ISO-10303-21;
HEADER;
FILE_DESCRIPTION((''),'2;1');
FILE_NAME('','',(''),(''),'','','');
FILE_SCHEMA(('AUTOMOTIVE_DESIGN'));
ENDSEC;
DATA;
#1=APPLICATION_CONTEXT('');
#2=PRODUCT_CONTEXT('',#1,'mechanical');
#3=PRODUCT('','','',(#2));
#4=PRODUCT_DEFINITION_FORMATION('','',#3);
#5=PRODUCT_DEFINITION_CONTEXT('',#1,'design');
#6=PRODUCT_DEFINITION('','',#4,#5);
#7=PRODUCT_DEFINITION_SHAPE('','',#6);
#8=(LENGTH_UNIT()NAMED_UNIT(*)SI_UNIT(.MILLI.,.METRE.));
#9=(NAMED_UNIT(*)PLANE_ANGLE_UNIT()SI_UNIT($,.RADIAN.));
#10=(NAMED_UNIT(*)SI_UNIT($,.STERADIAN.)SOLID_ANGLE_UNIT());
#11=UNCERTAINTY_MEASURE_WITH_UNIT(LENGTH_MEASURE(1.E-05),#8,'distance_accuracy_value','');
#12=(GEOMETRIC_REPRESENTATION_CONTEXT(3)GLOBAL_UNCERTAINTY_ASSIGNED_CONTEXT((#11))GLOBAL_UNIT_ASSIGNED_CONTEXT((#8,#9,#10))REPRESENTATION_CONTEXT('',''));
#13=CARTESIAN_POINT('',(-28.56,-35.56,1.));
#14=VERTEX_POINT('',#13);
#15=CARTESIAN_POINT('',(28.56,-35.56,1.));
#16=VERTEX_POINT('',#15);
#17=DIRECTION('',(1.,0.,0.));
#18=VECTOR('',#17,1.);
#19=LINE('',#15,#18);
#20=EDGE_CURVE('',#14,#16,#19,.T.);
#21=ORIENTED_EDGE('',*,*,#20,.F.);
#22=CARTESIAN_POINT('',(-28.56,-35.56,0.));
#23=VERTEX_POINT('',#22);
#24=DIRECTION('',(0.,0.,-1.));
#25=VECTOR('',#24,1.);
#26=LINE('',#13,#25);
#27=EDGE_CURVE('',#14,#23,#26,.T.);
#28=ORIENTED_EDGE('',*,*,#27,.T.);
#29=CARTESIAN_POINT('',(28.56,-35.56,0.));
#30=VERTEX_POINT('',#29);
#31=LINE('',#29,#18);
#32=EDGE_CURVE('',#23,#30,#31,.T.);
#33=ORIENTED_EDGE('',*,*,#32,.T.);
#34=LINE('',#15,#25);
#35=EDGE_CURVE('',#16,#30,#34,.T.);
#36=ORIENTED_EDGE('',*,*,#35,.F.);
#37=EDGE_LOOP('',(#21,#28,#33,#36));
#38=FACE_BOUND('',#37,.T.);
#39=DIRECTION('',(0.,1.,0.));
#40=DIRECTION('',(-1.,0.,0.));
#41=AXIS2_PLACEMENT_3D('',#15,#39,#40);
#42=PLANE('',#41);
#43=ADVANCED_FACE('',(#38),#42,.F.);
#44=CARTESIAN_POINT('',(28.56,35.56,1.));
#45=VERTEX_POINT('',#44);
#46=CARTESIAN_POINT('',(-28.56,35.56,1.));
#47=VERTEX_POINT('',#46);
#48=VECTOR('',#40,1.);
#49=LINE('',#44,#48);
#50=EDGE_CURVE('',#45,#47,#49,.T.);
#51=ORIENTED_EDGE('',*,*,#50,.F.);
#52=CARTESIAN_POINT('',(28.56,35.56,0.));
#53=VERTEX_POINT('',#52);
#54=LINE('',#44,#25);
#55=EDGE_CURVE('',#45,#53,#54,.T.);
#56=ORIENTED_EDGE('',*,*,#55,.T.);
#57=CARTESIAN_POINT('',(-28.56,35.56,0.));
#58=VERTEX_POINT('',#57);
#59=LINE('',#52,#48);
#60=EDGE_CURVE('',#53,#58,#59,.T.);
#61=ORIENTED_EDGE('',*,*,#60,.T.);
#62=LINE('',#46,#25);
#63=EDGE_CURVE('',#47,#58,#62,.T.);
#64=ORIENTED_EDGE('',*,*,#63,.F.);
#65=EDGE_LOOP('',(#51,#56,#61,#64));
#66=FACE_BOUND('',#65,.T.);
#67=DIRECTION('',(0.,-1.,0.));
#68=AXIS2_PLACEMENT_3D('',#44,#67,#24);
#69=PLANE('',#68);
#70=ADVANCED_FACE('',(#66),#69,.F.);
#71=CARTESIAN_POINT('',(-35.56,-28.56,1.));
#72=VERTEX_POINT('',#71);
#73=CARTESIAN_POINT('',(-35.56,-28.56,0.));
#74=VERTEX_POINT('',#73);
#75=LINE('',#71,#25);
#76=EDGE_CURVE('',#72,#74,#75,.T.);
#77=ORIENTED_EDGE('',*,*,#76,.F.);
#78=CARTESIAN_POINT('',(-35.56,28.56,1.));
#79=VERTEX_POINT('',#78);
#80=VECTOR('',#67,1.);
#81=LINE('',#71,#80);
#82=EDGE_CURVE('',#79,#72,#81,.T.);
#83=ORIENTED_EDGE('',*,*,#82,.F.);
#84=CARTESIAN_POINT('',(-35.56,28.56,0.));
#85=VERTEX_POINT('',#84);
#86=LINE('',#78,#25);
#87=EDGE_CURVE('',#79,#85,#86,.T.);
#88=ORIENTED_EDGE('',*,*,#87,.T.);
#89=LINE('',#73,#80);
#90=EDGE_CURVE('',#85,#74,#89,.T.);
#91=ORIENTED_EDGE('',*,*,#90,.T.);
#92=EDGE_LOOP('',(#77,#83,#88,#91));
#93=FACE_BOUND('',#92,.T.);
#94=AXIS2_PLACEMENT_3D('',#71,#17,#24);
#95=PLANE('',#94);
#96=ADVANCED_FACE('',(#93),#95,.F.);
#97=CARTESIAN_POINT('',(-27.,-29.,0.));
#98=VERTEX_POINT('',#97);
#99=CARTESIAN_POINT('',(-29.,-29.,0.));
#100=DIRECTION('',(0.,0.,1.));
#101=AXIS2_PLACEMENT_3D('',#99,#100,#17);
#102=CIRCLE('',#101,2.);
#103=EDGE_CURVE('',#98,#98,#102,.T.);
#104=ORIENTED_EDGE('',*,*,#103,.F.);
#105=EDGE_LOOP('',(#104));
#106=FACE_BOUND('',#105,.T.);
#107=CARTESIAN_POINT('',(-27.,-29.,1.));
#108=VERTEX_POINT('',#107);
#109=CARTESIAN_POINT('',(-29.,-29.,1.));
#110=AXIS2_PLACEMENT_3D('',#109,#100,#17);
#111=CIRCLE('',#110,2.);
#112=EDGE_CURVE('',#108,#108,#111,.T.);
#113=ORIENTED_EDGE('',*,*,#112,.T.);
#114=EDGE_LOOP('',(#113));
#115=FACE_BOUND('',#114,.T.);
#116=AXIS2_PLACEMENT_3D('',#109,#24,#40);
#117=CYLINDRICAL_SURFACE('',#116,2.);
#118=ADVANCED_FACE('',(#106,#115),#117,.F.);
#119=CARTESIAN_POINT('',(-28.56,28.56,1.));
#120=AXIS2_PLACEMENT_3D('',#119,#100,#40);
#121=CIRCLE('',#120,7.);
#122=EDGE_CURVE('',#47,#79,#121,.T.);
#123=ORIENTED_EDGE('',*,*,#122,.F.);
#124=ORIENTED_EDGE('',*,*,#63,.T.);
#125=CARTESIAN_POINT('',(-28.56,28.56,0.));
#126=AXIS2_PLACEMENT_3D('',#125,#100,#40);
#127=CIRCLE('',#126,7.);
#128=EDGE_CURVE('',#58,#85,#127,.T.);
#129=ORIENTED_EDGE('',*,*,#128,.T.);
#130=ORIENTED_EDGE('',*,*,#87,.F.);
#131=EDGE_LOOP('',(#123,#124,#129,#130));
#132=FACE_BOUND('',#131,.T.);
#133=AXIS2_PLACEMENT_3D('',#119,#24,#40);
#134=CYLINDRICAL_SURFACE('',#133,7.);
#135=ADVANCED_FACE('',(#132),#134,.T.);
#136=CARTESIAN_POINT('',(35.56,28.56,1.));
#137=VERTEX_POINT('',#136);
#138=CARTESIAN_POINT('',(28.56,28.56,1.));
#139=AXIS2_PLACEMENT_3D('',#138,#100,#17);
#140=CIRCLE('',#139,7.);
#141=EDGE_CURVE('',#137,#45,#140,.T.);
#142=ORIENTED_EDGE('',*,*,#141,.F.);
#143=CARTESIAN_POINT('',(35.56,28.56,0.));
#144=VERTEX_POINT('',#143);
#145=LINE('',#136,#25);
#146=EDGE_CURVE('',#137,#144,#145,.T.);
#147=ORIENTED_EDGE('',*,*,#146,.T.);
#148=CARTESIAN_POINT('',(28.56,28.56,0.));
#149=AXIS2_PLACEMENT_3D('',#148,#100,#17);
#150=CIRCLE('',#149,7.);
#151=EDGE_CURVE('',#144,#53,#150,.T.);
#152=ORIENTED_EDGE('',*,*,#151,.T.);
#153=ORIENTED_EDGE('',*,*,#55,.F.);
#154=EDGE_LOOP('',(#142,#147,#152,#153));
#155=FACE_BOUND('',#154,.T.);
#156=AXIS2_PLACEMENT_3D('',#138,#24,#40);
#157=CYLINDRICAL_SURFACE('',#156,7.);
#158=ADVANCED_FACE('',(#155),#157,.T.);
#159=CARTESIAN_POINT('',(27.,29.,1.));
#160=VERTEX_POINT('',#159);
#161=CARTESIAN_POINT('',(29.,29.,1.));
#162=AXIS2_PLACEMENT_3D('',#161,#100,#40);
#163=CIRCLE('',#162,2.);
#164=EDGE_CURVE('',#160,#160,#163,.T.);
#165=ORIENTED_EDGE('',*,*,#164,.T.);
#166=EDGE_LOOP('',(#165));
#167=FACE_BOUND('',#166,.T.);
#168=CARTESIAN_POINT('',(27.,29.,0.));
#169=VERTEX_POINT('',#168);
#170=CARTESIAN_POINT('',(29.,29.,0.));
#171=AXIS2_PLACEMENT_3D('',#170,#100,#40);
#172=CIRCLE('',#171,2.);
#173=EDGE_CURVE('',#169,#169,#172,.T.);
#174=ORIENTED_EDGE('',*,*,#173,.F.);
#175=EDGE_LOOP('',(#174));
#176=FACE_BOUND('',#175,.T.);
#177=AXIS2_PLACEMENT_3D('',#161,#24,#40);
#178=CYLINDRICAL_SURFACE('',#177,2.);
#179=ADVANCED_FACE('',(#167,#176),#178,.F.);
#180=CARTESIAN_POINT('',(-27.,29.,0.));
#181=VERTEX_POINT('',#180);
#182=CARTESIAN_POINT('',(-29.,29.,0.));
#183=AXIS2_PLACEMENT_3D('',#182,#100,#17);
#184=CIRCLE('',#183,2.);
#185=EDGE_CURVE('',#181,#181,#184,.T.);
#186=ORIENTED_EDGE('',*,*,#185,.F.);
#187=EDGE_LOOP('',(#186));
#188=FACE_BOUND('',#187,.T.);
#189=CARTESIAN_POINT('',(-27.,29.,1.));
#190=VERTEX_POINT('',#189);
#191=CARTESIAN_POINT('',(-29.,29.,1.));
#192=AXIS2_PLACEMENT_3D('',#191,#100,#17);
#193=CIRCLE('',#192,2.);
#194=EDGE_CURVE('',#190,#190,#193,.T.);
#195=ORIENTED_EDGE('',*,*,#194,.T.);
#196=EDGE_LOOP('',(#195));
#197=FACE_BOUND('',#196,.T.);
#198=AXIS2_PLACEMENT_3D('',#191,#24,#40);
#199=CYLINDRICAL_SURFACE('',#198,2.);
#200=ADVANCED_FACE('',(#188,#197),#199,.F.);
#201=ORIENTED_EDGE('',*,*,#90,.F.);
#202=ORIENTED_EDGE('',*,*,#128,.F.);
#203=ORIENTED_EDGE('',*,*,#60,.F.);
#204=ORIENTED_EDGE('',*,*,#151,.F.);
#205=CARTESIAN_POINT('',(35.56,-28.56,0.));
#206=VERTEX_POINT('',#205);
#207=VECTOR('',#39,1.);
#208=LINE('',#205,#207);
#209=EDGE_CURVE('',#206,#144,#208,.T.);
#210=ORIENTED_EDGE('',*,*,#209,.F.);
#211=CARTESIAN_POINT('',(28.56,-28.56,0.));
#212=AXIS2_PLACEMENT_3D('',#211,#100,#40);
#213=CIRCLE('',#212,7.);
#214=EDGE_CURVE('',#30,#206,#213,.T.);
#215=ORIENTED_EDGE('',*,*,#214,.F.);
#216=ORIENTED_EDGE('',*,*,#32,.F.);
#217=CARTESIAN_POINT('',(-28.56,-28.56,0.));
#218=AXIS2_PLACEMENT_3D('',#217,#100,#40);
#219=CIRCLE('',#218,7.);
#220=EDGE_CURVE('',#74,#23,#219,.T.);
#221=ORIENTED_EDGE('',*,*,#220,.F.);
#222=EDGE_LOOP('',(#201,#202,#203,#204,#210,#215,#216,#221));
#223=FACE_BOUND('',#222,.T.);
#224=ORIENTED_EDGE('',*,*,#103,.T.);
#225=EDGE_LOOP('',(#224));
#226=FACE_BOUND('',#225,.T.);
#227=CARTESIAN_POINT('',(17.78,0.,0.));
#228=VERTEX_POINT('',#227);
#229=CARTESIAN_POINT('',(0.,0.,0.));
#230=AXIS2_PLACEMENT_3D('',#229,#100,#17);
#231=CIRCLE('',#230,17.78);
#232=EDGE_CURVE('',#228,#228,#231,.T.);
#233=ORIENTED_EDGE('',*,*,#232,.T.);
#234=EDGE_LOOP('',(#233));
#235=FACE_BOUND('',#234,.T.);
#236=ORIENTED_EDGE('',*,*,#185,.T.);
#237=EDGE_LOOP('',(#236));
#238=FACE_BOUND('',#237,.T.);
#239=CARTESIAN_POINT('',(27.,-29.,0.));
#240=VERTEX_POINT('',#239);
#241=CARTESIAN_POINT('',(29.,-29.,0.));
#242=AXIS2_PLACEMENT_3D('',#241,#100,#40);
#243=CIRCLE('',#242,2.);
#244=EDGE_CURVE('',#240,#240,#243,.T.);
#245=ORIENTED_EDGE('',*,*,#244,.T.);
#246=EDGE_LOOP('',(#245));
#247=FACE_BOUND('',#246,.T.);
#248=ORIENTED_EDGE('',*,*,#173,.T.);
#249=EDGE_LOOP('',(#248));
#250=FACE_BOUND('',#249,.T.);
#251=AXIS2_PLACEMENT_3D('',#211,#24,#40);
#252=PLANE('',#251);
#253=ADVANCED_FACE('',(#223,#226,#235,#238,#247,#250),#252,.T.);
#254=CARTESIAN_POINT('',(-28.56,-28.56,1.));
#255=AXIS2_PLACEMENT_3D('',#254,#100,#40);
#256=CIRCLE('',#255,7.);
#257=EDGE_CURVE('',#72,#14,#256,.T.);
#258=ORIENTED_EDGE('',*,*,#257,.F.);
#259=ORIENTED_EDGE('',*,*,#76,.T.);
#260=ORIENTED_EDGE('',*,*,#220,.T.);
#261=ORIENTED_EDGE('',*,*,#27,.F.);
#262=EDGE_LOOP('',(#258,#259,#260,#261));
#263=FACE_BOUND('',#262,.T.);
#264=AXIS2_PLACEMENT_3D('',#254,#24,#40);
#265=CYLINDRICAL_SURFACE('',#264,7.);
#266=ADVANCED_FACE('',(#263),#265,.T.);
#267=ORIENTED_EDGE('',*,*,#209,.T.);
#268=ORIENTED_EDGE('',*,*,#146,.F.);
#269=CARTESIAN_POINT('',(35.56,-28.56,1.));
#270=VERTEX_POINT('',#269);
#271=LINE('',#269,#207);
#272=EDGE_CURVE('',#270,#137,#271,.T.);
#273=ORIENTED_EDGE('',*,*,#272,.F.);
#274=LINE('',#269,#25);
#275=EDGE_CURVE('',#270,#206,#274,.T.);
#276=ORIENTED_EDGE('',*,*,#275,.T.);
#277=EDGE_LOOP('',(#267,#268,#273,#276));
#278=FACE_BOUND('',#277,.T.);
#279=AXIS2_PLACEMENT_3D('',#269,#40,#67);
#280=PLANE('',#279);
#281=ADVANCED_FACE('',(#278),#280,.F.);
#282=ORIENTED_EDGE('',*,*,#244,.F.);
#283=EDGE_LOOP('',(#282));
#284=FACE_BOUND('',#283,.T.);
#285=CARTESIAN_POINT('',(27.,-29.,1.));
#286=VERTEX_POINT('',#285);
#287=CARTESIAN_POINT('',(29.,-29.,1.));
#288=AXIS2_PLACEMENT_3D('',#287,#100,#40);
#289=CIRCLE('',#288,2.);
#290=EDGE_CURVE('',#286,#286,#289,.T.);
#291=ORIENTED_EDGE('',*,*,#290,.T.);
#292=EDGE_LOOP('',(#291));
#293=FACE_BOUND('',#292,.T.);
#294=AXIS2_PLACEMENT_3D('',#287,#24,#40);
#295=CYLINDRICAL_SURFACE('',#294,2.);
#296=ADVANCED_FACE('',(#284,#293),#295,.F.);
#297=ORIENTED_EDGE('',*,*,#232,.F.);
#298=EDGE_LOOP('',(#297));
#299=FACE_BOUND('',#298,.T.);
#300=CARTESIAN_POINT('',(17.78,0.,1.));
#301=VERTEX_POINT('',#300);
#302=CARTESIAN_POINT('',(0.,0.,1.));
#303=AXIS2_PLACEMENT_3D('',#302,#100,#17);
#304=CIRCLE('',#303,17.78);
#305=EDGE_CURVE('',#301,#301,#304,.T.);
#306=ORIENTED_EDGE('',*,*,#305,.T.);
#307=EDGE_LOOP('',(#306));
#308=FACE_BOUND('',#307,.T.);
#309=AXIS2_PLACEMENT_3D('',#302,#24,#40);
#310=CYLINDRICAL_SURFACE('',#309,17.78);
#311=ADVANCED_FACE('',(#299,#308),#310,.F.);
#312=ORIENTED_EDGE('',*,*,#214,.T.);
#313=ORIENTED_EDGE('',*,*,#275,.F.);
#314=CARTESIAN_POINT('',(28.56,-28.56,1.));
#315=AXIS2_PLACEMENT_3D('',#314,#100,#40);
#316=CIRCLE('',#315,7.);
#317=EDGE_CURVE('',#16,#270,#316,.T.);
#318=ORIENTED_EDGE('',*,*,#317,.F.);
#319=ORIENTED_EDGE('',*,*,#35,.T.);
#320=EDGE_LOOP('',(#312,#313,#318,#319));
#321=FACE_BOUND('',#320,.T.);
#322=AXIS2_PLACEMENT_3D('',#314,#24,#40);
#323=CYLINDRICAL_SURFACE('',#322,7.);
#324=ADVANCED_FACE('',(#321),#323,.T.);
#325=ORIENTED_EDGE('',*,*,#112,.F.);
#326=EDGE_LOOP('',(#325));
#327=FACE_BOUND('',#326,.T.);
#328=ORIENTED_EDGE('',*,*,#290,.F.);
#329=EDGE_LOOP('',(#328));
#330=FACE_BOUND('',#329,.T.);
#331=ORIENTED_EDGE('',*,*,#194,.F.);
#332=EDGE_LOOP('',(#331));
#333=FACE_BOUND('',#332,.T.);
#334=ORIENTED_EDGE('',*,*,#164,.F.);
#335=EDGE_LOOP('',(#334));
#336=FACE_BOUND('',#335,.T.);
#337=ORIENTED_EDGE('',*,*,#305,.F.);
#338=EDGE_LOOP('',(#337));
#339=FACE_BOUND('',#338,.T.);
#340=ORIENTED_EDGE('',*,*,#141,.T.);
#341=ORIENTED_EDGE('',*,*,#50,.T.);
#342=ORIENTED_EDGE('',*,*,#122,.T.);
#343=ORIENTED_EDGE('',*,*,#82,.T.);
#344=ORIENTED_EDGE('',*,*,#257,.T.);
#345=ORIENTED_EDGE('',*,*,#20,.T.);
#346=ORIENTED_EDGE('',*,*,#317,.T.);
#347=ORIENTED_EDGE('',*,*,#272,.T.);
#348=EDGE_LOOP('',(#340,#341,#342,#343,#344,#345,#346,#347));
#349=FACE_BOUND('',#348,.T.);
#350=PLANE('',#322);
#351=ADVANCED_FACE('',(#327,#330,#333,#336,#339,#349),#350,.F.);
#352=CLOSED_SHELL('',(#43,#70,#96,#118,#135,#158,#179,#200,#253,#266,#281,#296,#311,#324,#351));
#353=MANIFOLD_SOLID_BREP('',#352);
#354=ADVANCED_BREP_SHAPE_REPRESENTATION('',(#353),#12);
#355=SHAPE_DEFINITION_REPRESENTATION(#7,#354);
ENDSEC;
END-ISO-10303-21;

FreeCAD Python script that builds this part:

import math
import FreeCAD as App
import Part
import Sketcher
Q = App.Units.Quantity

doc = App.newDocument("Part")
body = doc.addObject("PartDesign::Body", "Body")

# Sketch on XY plane
sketch1 = body.newObject("Sketcher::SketchObject", "Sketch")
sketch1.AttachmentSupport = (doc.getObject("XY_Plane"), [""])
sketch1.MapMode = "FlatFace"
sketch1.addGeometry(Part.LineSegment(App.Vector(35.6, -28.6, 0), App.Vector(35.6, 28.6, 0)), False)
sketch1.addGeometry(Part.ArcOfCircle(Part.Circle(App.Vector(28.6, 28.6, 0), App.Vector(0, 0, 1), 7), math.radians(0), math.radians(90)), False)
sketch1.addGeometry(Part.LineSegment(App.Vector(28.6, 35.6, 0), App.Vector(-28.6, 35.6, 0)), False)
sketch1.addGeometry(Part.ArcOfCircle(Part.Circle(App.Vector(-28.6, 28.6, 0), App.Vector(0, 0, 1), 7), math.radians(90), math.radians(180)), False)
sketch1.addGeometry(Part.LineSegment(App.Vector(-35.6, 28.6, 0), App.Vector(-35.6, -28.6, 0)), False)
sketch1.addGeometry(Part.ArcOfCircle(Part.Circle(App.Vector(-28.6, -28.6, 0), App.Vector(0, 0, 1), 7), math.radians(-180), math.radians(-90)), False)
sketch1.addGeometry(Part.LineSegment(App.Vector(-28.6, -35.6, 0), App.Vector(28.6, -35.6, 0)), False)
sketch1.addGeometry(Part.ArcOfCircle(Part.Circle(App.Vector(28.6, -28.6, 0), App.Vector(0, 0, 1), 7), math.radians(-90), math.radians(0)), False)
sketch1.addGeometry(Part.Circle(App.Vector(29, -29, 0), App.Vector(0, 0, 1), 2), False)
sketch1.addGeometry(Part.Circle(App.Vector(29, 29, 0), App.Vector(0, 0, 1), 2), False)
sketch1.addGeometry(Part.Circle(App.Vector(-29, -29, 0), App.Vector(0, 0, 1), 2), False)
sketch1.addGeometry(Part.Circle(App.Vector(0, 0, 0), App.Vector(0, 0, 1), 17.8), False)
sketch1.addGeometry(Part.Circle(App.Vector(-29, 29, 0), App.Vector(0, 0, 1), 2), False)
sketch1.addConstraint(Sketcher.Constraint("Tangent", 0, 2, 1, 1))
sketch1.addConstraint(Sketcher.Constraint("Tangent", 1, 2, 2, 1))
sketch1.addConstraint(Sketcher.Constraint("Tangent", 2, 2, 3, 1))
sketch1.addConstraint(Sketcher.Constraint("Tangent", 3, 2, 4, 1))
sketch1.addConstraint(Sketcher.Constraint("Tangent", 4, 2, 5, 1))
sketch1.addConstraint(Sketcher.Constraint("Tangent", 5, 2, 6, 1))
sketch1.addConstraint(Sketcher.Constraint("Tangent", 6, 2, 7, 1))
sketch1.addConstraint(Sketcher.Constraint("Tangent", 7, 2, 0, 1))
sketch1.addConstraint(Sketcher.Constraint("Vertical", 0))
sketch1.addConstraint(Sketcher.Constraint("Horizontal", 2))
sketch1.addConstraint(Sketcher.Constraint("Vertical", 4))
sketch1.addConstraint(Sketcher.Constraint("Horizontal", 6))
sketch1.addConstraint(Sketcher.Constraint("Coincident", 11, 3, -1, 1))
sketch1.addConstraint(Sketcher.Constraint("Equal", 1, 3))
sketch1.addConstraint(Sketcher.Constraint("Equal", 3, 5))
sketch1.addConstraint(Sketcher.Constraint("Equal", 5, 7))
sketch1.addConstraint(Sketcher.Constraint("Equal", 8, 9))
sketch1.addConstraint(Sketcher.Constraint("Equal", 9, 10))
sketch1.addConstraint(Sketcher.Constraint("Equal", 10, 12))
sketch1.addConstraint(Sketcher.Constraint("Symmetric", 1, 3, 5, 3, -1, 1))
sketch1.addConstraint(Sketcher.Constraint("Symmetric", 9, 3, 10, 3, -1, 1))
sketch1.addConstraint(Sketcher.Constraint("Symmetric", 8, 3, 12, 3, -1, 1))
sketch1.addConstraint(Sketcher.Constraint("Symmetric", 8, 3, 10, 3, -2))
sketch1.addConstraint(Sketcher.Constraint("Equal", 6, 0))
sketch1.addConstraint(Sketcher.Constraint("Diameter", 8, Q("4 mm")))
sketch1.addConstraint(Sketcher.Constraint("Radius", 1, Q("7 mm")))
sketch1.addConstraint(Sketcher.Constraint("Diameter", 11, Q("35.56 mm")))
sketch1.addConstraint(Sketcher.Constraint("DistanceX", -1, 1, 8, 3, Q("29 mm")))
sketch1.addConstraint(Sketcher.Constraint("DistanceY", 8, 3, -1, 1, Q("29 mm")))
sketch1.addConstraint(Sketcher.Constraint("DistanceX", 2, 2, 2, 1, Q("57.12 mm")))
pad1 = body.newObject("PartDesign::Pad", "Pad")
pad1.Profile = sketch1
pad1.Length = 1

doc.recompute()
